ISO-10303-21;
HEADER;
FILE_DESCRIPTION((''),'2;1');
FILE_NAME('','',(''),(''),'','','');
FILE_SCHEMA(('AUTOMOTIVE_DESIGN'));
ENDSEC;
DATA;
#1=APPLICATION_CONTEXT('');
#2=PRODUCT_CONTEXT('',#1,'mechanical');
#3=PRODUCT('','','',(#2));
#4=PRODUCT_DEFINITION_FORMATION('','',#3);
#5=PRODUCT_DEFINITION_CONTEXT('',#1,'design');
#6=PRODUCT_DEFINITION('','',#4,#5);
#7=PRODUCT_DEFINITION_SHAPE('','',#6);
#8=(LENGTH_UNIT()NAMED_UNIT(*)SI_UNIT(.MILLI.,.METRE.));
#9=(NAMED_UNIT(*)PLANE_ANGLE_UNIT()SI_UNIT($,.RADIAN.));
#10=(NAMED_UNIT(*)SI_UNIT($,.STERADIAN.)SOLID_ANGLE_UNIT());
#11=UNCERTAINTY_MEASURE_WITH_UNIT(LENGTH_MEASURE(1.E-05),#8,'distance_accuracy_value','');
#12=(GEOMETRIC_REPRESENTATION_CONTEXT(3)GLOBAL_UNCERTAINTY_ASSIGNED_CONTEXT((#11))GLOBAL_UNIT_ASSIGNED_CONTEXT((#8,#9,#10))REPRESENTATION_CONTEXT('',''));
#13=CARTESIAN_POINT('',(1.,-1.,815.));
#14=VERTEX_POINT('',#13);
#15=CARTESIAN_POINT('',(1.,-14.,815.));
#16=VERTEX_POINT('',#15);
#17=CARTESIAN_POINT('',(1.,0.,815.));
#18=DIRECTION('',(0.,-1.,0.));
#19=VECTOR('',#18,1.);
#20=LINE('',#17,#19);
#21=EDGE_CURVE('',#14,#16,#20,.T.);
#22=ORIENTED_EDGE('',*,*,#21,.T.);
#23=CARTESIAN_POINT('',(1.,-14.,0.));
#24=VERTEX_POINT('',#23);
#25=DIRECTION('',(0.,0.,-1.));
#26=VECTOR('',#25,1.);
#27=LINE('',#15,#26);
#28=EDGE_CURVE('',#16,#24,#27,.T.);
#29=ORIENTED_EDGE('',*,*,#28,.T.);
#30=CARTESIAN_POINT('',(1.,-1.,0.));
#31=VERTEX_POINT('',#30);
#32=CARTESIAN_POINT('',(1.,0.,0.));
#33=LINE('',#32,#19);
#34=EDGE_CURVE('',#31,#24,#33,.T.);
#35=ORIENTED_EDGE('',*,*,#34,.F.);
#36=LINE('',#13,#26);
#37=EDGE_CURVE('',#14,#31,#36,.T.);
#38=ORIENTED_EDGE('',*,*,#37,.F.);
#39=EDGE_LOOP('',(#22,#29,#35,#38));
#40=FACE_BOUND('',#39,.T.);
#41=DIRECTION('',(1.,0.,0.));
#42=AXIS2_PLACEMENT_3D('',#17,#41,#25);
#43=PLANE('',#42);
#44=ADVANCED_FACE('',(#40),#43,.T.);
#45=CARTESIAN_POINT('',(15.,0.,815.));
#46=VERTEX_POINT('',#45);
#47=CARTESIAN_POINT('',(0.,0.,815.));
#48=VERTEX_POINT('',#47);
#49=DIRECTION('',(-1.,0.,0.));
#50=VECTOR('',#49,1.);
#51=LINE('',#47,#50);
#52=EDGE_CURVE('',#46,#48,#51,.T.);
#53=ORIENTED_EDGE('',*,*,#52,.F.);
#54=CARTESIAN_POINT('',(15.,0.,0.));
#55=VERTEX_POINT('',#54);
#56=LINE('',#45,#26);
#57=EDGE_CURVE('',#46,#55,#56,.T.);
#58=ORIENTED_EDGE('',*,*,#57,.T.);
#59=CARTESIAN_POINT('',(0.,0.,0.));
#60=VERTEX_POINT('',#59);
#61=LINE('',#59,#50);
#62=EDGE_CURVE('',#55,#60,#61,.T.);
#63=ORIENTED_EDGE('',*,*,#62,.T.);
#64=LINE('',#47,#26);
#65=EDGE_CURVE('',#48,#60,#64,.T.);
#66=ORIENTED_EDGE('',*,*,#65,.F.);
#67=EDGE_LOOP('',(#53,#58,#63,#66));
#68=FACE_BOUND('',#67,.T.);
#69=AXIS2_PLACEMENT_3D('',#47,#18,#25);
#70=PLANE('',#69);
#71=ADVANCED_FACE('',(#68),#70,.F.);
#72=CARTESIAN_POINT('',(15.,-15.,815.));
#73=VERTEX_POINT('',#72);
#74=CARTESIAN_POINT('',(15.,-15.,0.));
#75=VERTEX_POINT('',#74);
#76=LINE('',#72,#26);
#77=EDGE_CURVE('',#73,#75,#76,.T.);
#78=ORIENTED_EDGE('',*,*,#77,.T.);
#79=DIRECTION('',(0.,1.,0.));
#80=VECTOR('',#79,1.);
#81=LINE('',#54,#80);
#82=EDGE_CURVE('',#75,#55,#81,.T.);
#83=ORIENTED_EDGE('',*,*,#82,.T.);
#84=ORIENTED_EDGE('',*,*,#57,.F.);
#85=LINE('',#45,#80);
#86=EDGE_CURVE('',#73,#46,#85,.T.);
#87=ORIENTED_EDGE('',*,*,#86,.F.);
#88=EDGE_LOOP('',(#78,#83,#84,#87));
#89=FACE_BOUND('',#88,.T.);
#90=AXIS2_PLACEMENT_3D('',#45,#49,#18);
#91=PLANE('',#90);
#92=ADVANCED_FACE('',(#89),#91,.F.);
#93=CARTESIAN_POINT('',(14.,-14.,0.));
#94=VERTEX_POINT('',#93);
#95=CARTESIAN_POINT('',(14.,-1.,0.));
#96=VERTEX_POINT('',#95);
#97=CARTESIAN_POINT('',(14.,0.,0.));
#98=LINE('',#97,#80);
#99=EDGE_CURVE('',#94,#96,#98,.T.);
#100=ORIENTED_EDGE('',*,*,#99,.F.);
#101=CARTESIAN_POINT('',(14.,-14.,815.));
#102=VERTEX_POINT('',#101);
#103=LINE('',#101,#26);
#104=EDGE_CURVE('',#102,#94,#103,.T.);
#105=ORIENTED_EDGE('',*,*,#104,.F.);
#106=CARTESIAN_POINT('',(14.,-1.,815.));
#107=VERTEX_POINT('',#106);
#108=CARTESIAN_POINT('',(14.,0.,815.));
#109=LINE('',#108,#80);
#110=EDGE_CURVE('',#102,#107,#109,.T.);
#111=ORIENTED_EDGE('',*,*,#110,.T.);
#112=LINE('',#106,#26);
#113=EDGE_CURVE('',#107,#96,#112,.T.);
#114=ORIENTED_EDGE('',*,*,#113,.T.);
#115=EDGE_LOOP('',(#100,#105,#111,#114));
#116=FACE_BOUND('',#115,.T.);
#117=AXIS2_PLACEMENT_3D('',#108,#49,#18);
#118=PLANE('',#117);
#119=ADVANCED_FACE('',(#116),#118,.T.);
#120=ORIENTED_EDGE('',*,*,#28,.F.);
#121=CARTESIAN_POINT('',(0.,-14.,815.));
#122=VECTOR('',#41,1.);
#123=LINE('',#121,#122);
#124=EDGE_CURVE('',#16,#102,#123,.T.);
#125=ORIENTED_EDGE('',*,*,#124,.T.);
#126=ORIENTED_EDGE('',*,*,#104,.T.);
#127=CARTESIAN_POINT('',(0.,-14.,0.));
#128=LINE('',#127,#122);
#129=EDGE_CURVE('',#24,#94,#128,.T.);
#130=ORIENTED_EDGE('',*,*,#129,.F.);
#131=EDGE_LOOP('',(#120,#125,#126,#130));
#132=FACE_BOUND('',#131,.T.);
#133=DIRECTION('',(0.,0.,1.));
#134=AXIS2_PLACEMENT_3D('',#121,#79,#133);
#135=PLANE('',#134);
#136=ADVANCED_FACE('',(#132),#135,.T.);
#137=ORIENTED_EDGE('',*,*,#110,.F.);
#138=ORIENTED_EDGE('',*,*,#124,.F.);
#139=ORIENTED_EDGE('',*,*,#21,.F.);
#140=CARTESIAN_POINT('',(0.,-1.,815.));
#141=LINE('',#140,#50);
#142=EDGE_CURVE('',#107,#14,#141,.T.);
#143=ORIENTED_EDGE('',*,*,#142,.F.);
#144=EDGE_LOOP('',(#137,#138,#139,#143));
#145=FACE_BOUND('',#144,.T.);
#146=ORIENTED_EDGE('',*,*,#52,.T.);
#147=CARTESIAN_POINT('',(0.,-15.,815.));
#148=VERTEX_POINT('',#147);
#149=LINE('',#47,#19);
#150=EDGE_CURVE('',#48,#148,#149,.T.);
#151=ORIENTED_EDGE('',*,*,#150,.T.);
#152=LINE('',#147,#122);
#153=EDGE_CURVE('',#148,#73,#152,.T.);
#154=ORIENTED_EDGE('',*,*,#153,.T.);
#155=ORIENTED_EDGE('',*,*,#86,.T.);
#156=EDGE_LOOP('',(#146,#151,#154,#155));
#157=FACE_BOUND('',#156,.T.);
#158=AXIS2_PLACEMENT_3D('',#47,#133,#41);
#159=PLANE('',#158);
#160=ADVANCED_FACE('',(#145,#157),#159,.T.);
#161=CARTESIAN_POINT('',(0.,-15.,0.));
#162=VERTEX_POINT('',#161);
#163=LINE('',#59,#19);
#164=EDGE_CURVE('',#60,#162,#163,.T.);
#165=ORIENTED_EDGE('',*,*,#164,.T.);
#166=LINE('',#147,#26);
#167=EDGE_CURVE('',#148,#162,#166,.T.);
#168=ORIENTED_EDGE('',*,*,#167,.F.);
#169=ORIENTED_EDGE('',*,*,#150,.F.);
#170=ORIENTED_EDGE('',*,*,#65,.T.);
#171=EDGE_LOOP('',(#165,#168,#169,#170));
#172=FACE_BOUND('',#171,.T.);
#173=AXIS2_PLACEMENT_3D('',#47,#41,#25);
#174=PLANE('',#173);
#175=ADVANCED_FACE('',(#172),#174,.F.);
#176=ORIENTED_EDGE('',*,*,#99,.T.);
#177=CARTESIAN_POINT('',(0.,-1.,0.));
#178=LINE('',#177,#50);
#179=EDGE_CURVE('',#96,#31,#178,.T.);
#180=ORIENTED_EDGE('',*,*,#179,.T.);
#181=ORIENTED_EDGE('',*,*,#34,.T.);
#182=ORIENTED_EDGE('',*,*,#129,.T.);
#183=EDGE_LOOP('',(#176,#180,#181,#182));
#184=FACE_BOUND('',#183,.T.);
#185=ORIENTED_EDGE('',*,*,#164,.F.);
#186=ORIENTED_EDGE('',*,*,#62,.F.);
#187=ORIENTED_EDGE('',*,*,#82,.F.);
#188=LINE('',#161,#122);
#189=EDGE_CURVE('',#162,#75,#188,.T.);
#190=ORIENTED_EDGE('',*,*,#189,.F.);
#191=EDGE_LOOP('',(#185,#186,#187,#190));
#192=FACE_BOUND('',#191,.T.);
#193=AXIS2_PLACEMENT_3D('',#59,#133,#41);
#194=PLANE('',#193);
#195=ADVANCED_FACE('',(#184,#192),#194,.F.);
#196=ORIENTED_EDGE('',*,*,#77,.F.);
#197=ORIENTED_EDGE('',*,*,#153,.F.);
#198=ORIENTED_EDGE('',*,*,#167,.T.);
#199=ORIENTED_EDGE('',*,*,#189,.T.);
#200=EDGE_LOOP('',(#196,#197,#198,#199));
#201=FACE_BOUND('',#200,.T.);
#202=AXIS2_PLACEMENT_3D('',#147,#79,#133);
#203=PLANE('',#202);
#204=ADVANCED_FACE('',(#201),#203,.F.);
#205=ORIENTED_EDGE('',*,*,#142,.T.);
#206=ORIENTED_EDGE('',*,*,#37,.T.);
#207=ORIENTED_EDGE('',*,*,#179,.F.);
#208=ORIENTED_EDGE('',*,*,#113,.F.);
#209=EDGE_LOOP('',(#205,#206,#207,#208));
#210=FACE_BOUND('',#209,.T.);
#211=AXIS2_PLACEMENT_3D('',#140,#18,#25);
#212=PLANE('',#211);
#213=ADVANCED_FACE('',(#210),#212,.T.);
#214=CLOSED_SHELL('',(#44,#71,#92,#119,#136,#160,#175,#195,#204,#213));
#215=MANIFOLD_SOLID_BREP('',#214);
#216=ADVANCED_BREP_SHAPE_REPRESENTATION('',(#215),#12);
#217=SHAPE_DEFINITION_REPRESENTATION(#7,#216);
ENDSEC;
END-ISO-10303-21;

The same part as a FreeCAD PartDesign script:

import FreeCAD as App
import Part
import Sketcher

V = App.Vector
Q = App.Units.Quantity

doc = App.newDocument("Part")
body = doc.addObject("PartDesign::Body", "Body")

# Sketch on XY plane
sketch1 = body.newObject("Sketcher::SketchObject", "Sketch")
sketch1.AttachmentSupport = (doc.getObject("XY_Plane"), [""])
sketch1.MapMode = "FlatFace"
sketch1.addGeometry([
    Part.LineSegment(V(0, 0, 0), V(0, -15, 0)),  # 0
    Part.LineSegment(V(0, -15, 0), V(15, -15, 0)),  # 1
    Part.LineSegment(V(15, -15, 0), V(15, 0, 0)),  # 2
    Part.LineSegment(V(15, 0, 0), V(0, 0, 0)),  # 3
    Part.LineSegment(V(14, -14, 0), V(1, -14, 0)),  # 4
    Part.LineSegment(V(1, -14, 0), V(1, -1, 0)),  # 5
    Part.LineSegment(V(1, -1, 0), V(14, -1, 0)),  # 6
    Part.LineSegment(V(14, -1, 0), V(14, -14, 0)),  # 7
], False)
sketch1.addConstraint([
    Sketcher.Constraint("Coincident", 0, 2, 1, 1),
    Sketcher.Constraint("Coincident", 1, 2, 2, 1),
    Sketcher.Constraint("Coincident", 2, 2, 3, 1),
    Sketcher.Constraint("Coincident", 3, 2, 0, 1),
    Sketcher.Constraint("Coincident", 4, 2, 5, 1),
    Sketcher.Constraint("Coincident", 5, 2, 6, 1),
    Sketcher.Constraint("Coincident", 6, 2, 7, 1),
    Sketcher.Constraint("Coincident", 7, 2, 4, 1),
    Sketcher.Constraint("Vertical", 0),
    Sketcher.Constraint("Horizontal", 1),
    Sketcher.Constraint("Vertical", 2),
    Sketcher.Constraint("Horizontal", 3),
    Sketcher.Constraint("Horizontal", 4),
    Sketcher.Constraint("Vertical", 5),
    Sketcher.Constraint("Horizontal", 6),
    Sketcher.Constraint("Vertical", 7),
    Sketcher.Constraint("Coincident", 3, 2, -1, 1),
    Sketcher.Constraint("Equal", 3, 0),
    Sketcher.Constraint("Equal", 6, 5),
    Sketcher.Constraint("DistanceX", 1, 1, 1, 2, Q("15 mm")),
    Sketcher.Constraint("DistanceX", 4, 2, 4, 1, Q("13 mm")),
    Sketcher.Constraint("DistanceX", -1, 1, 4, 2, Q("1 mm")),
    Sketcher.Constraint("DistanceY", 4, 2, -1, 1, Q("14 mm")),
])
pad1 = body.newObject("PartDesign::Pad", "Pad")
pad1.Profile = sketch1
pad1.Length = 815

doc.recompute()
